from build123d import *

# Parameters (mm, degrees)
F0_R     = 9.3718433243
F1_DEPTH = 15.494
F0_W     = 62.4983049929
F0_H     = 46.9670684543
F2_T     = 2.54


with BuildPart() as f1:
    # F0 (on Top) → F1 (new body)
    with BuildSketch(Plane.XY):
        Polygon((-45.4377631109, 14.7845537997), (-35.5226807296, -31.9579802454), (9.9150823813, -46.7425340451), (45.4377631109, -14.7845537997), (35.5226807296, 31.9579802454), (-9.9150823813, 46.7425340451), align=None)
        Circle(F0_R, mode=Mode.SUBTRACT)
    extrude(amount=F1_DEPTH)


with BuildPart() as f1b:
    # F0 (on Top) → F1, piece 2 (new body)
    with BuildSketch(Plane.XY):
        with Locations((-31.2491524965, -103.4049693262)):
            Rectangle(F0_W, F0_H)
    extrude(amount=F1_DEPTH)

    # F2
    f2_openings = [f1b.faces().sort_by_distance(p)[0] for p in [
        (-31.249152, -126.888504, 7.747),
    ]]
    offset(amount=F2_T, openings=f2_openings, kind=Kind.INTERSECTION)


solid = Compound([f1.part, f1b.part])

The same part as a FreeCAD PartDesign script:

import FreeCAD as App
import Part
import Sketcher
Q = App.Units.Quantity


def faces_at(feature, points):
    """Names of the faces that lie closest to the given points."""
    faces = feature.Shape.Faces
    near = lambda p: min(range(len(faces)), key=lambda i: faces[i].distToShape(Part.Vertex(*p))[0])
    return sorted({f"Face{near(p) + 1}" for p in points})

doc = App.newDocument("Part")
body = doc.addObject("PartDesign::Body", "Body")

sketch1 = body.newObject("Sketcher::SketchObject", "Sketch")
sketch1.AttachmentSupport = (doc.getObject("XY_Plane"), [""])
sketch1.MapMode = "FlatFace"
sketch1.addGeometry([
    Part.LineSegment(App.Vector(-45, 15, 0), App.Vector(-36, -32, 0)),
    Part.LineSegment(App.Vector(-36, -32, 0), App.Vector(10, -47, 0)),
    Part.LineSegment(App.Vector(10, -47, 0), App.Vector(45, -15, 0)),
    Part.LineSegment(App.Vector(45, -15, 0), App.Vector(36, 32, 0)),
    Part.LineSegment(App.Vector(36, 32, 0), App.Vector(-10, 47, 0)),
    Part.LineSegment(App.Vector(-10, 47, 0), App.Vector(-45, 15, 0)),
    Part.Circle(App.Vector(0, 0, 0), App.Vector(0, 0, 1), 9),
], False)
sketch1.addConstraint([
    Sketcher.Constraint("Coincident", 0, 2, 1, 1),
    Sketcher.Constraint("Coincident", 1, 2, 2, 1),
    Sketcher.Constraint("Coincident", 2, 2, 3, 1),
    Sketcher.Constraint("Coincident", 3, 2, 4, 1),
    Sketcher.Constraint("Coincident", 4, 2, 5, 1),
    Sketcher.Constraint("Coincident", 5, 2, 0, 1),
    Sketcher.Constraint("Coincident", 6, 3, -1, 1),
    Sketcher.Constraint("Symmetric", 0, 2, 3, 2, -1, 1),
    Sketcher.Constraint("Symmetric", 1, 2, 4, 2, -1, 1),
    Sketcher.Constraint("Symmetric", 2, 2, 5, 2, -1, 1),
    Sketcher.Constraint("Equal", 0, 1),
    Sketcher.Constraint("Equal", 1, 2),
    Sketcher.Constraint("Diameter", 6, 18.743687),
    Sketcher.Constraint("DistanceX", 1, 2, 3, 2, 25.607598),
    Sketcher.Constraint("DistanceX", 0, 2, -1, 1, 35.522681),
    Sketcher.Constraint("DistanceY", 0, 2, -1, 1, 31.95798),
    Sketcher.Constraint("DistanceX", 1, 2, 2, 2, 35.522681),
])
pad1 = body.newObject("PartDesign::Pad", "Pad")
pad1.Profile = sketch1
pad1.Length = Q("0.61 in")
body2 = doc.addObject("PartDesign::Body", "Body001")

sketch2 = body2.newObject("Sketcher::SketchObject", "Sketch001")
sketch2.AttachmentSupport = (doc.getObject("XY_Plane001"), [""])
sketch2.MapMode = "FlatFace"
sketch2.addGeometry([
    Part.LineSegment(App.Vector(-62, -80, 0), App.Vector(-62, -127, 0)),
    Part.LineSegment(App.Vector(-62, -127, 0), App.Vector(0, -127, 0)),
    Part.LineSegment(App.Vector(0, -127, 0), App.Vector(0, -80, 0)),
    Part.LineSegment(App.Vector(0, -80, 0), App.Vector(-62, -80, 0)),
], False)
sketch2.addConstraint([
    Sketcher.Constraint("Coincident", 0, 2, 1, 1),
    Sketcher.Constraint("Coincident", 1, 2, 2, 1),
    Sketcher.Constraint("Coincident", 2, 2, 3, 1),
    Sketcher.Constraint("Coincident", 3, 2, 0, 1),
    Sketcher.Constraint("Vertical", 0),
    Sketcher.Constraint("Horizontal", 1),
    Sketcher.Constraint("Vertical", 2),
    Sketcher.Constraint("Horizontal", 3),
    Sketcher.Constraint("PointOnObject", 1, 2, -2),
    Sketcher.Constraint("DistanceY", 0, 2, 0, 1, 46.967068),
    Sketcher.Constraint("DistanceX", 1, 1, 1, 2, 62.498305),
    Sketcher.Constraint("DistanceY", 0, 2, -1, 1, 126.888504),
])
pad2 = body2.newObject("PartDesign::Pad", "Pad001")
pad2.Profile = sketch2
pad2.Length = Q("0.61 in")
doc.recompute()

thickness = body2.newObject("PartDesign::Thickness", "Thickness")
thickness.Base = (pad2, faces_at(pad2, [(-31.249, -126.889, 7.747)]))
thickness.Value = Q("0.1 in")
thickness.Reversed = False
thickness.Join = "Intersection"

doc.recompute()
